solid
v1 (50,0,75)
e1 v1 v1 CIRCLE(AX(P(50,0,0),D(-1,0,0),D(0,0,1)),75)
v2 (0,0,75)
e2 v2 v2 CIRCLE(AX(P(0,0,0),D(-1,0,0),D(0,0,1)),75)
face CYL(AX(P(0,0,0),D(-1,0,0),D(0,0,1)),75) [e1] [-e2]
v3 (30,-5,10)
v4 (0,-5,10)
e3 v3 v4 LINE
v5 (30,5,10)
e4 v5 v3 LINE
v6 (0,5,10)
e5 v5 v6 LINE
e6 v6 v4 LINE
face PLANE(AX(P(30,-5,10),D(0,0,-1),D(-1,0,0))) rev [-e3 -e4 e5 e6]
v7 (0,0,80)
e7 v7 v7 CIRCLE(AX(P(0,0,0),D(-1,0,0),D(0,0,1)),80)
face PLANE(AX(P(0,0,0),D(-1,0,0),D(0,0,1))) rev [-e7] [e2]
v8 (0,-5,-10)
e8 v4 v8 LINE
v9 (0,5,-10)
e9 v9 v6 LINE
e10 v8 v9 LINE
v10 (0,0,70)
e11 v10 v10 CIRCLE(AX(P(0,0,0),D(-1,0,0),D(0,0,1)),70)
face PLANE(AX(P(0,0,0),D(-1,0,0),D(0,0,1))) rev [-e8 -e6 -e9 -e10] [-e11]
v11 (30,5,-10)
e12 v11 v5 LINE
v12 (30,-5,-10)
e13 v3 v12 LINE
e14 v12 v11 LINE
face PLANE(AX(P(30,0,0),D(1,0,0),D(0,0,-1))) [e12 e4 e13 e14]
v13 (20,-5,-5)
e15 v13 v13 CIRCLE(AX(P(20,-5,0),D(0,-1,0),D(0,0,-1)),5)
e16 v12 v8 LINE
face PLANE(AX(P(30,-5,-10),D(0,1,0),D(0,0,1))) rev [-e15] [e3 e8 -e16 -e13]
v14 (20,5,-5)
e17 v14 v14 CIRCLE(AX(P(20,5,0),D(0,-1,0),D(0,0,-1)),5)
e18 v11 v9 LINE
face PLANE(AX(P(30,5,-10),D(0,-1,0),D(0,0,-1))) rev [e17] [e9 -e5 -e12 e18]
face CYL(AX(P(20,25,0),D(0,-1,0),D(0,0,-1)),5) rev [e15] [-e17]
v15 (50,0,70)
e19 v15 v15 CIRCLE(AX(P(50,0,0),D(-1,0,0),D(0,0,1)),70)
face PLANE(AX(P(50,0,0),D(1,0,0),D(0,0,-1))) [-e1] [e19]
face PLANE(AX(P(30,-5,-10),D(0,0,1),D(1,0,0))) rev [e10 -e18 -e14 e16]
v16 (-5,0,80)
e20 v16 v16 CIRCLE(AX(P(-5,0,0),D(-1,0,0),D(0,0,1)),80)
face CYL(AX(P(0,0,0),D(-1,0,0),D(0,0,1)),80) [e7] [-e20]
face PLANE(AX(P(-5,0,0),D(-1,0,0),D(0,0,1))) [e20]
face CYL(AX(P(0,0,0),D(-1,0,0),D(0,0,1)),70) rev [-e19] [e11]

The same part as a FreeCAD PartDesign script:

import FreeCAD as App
import Part
import Sketcher

V = App.Vector


def add_polygon(sketch, points):
    """Adds a closed chain of lines whose ends are joined by coincident constraints."""
    first, n = sketch.GeometryCount, len(points)
    for a, b in zip(points, points[1:] + points[:1]):
        sketch.addGeometry(Part.LineSegment(App.Vector(*a, 0), App.Vector(*b, 0)), False)
    for i in range(n):
        sketch.addConstraint(Sketcher.Constraint("Coincident", first + i, 2, first + (i + 1) % n, 1))

doc = App.newDocument("Part")
params = doc.addObject("Spreadsheet::Sheet", "Params")
for row, (alias, value) in enumerate([
    ("sketch1_width", "5 mm"),
    ("sketch1_width2", "50 mm"),
    ("sketch1_height", "80 mm"),
    ("revolution_angle", "360 deg"),
    ("sketch2_width", "10 mm"),
    ("sketch2_height", "20 mm"),
    ("pad1_length", "30 mm"),
    ("sketch3_diameter", "10 mm"),
    ("pocket1_length", "30 mm"),
], start=1):
    params.set(f"A{row}", alias)
    params.set(f"B{row}", "=" + value)
    params.setAlias(f"B{row}", alias)

body = doc.addObject("PartDesign::Body", "Body")

sketch1 = body.newObject("Sketcher::SketchObject", "Sketch")
sketch1.AttachmentSupport = (doc.getObject("XY_Plane"), [""])
sketch1.MapMode = "FlatFace"
add_polygon(sketch1, [(-5, 80), (-5, 0), (0, 0), (0, 70), (50, 70), (50, 75), (0, 75), (0, 80)])
sketch1.addConstraint([
    Sketcher.Constraint("Vertical", 0),
    Sketcher.Constraint("Horizontal", 1),
    Sketcher.Constraint("Vertical", 2),
    Sketcher.Constraint("Horizontal", 3),
    Sketcher.Constraint("Vertical", 4),
    Sketcher.Constraint("Horizontal", 5),
    Sketcher.Constraint("Vertical", 6),
    Sketcher.Constraint("Horizontal", 7),
    Sketcher.Constraint("Coincident", 1, 2, -1, 1),
    Sketcher.Constraint("PointOnObject", 5, 2, -2),
    Sketcher.Constraint("Equal", 7, 4),
    Sketcher.Constraint("Equal", 4, 6),
    Sketcher.Constraint("DistanceX", 1, 1, 1, 2, 5.0),
    Sketcher.Constraint("DistanceX", 3, 1, 3, 2, 50.0),
    Sketcher.Constraint("DistanceY", 0, 2, 0, 1, 80.0),
])
sketch1.setExpression("Constraints[20]", "Params.sketch1_width")
sketch1.setExpression("Constraints[21]", "Params.sketch1_width2")
sketch1.setExpression("Constraints[22]", "Params.sketch1_height")
revolution = body.newObject("PartDesign::Revolution", "Revolution")
revolution.Profile = sketch1
revolution.ReferenceAxis = (sketch1, ["H_Axis"])
revolution.setExpression("Angle", "Params.revolution_angle")

sketch2 = body.newObject("Sketcher::SketchObject", "Sketch001")
sketch2.AttachmentSupport = (doc.getObject("YZ_Plane"), [""])
sketch2.MapMode = "FlatFace"
add_polygon(sketch2, [(5, 10), (-5, 10), (-5, -10), (5, -10)])
sketch2.addConstraint([
    Sketcher.Constraint("Horizontal", 0),
    Sketcher.Constraint("Vertical", 1),
    Sketcher.Constraint("Horizontal", 2),
    Sketcher.Constraint("Vertical", 3),
    Sketcher.Constraint("Symmetric", 0, 2, 2, 2, -1, 1),
    Sketcher.Constraint("DistanceX", 0, 2, 0, 1, 10.0),
    Sketcher.Constraint("DistanceY", 1, 2, 1, 1, 20.0),
])
sketch2.setExpression("Constraints[9]", "Params.sketch2_width")
sketch2.setExpression("Constraints[10]", "Params.sketch2_height")
pad1 = body.newObject("PartDesign::Pad", "Pad")
pad1.Profile = sketch2
pad1.setExpression("Length", "Params.pad1_length")

sketch3 = body.newObject("Sketcher::SketchObject", "Sketch002")
sketch3.AttachmentSupport = (doc.getObject("XZ_Plane"), [""])
sketch3.MapMode = "FlatFace"
sketch3.AttachmentOffset = App.Placement(V(0, 0, 5), App.Rotation())
sketch3.addGeometry(Part.Circle(V(20, 0, 0), V(0, 0, 1), 5), False)
sketch3.addConstraint([
    Sketcher.Constraint("PointOnObject", 0, 3, -1),
    Sketcher.Constraint("Diameter", 0, 10.0),
    Sketcher.Constraint("DistanceX", -1, 1, 0, 3, 20.0),
])
sketch3.setExpression("Constraints[1]", "Params.sketch3_diameter")
pocket1 = body.newObject("PartDesign::Pocket", "Pocket")
pocket1.Profile = sketch3
pocket1.setExpression("Length", "Params.pocket1_length")

doc.recompute()
